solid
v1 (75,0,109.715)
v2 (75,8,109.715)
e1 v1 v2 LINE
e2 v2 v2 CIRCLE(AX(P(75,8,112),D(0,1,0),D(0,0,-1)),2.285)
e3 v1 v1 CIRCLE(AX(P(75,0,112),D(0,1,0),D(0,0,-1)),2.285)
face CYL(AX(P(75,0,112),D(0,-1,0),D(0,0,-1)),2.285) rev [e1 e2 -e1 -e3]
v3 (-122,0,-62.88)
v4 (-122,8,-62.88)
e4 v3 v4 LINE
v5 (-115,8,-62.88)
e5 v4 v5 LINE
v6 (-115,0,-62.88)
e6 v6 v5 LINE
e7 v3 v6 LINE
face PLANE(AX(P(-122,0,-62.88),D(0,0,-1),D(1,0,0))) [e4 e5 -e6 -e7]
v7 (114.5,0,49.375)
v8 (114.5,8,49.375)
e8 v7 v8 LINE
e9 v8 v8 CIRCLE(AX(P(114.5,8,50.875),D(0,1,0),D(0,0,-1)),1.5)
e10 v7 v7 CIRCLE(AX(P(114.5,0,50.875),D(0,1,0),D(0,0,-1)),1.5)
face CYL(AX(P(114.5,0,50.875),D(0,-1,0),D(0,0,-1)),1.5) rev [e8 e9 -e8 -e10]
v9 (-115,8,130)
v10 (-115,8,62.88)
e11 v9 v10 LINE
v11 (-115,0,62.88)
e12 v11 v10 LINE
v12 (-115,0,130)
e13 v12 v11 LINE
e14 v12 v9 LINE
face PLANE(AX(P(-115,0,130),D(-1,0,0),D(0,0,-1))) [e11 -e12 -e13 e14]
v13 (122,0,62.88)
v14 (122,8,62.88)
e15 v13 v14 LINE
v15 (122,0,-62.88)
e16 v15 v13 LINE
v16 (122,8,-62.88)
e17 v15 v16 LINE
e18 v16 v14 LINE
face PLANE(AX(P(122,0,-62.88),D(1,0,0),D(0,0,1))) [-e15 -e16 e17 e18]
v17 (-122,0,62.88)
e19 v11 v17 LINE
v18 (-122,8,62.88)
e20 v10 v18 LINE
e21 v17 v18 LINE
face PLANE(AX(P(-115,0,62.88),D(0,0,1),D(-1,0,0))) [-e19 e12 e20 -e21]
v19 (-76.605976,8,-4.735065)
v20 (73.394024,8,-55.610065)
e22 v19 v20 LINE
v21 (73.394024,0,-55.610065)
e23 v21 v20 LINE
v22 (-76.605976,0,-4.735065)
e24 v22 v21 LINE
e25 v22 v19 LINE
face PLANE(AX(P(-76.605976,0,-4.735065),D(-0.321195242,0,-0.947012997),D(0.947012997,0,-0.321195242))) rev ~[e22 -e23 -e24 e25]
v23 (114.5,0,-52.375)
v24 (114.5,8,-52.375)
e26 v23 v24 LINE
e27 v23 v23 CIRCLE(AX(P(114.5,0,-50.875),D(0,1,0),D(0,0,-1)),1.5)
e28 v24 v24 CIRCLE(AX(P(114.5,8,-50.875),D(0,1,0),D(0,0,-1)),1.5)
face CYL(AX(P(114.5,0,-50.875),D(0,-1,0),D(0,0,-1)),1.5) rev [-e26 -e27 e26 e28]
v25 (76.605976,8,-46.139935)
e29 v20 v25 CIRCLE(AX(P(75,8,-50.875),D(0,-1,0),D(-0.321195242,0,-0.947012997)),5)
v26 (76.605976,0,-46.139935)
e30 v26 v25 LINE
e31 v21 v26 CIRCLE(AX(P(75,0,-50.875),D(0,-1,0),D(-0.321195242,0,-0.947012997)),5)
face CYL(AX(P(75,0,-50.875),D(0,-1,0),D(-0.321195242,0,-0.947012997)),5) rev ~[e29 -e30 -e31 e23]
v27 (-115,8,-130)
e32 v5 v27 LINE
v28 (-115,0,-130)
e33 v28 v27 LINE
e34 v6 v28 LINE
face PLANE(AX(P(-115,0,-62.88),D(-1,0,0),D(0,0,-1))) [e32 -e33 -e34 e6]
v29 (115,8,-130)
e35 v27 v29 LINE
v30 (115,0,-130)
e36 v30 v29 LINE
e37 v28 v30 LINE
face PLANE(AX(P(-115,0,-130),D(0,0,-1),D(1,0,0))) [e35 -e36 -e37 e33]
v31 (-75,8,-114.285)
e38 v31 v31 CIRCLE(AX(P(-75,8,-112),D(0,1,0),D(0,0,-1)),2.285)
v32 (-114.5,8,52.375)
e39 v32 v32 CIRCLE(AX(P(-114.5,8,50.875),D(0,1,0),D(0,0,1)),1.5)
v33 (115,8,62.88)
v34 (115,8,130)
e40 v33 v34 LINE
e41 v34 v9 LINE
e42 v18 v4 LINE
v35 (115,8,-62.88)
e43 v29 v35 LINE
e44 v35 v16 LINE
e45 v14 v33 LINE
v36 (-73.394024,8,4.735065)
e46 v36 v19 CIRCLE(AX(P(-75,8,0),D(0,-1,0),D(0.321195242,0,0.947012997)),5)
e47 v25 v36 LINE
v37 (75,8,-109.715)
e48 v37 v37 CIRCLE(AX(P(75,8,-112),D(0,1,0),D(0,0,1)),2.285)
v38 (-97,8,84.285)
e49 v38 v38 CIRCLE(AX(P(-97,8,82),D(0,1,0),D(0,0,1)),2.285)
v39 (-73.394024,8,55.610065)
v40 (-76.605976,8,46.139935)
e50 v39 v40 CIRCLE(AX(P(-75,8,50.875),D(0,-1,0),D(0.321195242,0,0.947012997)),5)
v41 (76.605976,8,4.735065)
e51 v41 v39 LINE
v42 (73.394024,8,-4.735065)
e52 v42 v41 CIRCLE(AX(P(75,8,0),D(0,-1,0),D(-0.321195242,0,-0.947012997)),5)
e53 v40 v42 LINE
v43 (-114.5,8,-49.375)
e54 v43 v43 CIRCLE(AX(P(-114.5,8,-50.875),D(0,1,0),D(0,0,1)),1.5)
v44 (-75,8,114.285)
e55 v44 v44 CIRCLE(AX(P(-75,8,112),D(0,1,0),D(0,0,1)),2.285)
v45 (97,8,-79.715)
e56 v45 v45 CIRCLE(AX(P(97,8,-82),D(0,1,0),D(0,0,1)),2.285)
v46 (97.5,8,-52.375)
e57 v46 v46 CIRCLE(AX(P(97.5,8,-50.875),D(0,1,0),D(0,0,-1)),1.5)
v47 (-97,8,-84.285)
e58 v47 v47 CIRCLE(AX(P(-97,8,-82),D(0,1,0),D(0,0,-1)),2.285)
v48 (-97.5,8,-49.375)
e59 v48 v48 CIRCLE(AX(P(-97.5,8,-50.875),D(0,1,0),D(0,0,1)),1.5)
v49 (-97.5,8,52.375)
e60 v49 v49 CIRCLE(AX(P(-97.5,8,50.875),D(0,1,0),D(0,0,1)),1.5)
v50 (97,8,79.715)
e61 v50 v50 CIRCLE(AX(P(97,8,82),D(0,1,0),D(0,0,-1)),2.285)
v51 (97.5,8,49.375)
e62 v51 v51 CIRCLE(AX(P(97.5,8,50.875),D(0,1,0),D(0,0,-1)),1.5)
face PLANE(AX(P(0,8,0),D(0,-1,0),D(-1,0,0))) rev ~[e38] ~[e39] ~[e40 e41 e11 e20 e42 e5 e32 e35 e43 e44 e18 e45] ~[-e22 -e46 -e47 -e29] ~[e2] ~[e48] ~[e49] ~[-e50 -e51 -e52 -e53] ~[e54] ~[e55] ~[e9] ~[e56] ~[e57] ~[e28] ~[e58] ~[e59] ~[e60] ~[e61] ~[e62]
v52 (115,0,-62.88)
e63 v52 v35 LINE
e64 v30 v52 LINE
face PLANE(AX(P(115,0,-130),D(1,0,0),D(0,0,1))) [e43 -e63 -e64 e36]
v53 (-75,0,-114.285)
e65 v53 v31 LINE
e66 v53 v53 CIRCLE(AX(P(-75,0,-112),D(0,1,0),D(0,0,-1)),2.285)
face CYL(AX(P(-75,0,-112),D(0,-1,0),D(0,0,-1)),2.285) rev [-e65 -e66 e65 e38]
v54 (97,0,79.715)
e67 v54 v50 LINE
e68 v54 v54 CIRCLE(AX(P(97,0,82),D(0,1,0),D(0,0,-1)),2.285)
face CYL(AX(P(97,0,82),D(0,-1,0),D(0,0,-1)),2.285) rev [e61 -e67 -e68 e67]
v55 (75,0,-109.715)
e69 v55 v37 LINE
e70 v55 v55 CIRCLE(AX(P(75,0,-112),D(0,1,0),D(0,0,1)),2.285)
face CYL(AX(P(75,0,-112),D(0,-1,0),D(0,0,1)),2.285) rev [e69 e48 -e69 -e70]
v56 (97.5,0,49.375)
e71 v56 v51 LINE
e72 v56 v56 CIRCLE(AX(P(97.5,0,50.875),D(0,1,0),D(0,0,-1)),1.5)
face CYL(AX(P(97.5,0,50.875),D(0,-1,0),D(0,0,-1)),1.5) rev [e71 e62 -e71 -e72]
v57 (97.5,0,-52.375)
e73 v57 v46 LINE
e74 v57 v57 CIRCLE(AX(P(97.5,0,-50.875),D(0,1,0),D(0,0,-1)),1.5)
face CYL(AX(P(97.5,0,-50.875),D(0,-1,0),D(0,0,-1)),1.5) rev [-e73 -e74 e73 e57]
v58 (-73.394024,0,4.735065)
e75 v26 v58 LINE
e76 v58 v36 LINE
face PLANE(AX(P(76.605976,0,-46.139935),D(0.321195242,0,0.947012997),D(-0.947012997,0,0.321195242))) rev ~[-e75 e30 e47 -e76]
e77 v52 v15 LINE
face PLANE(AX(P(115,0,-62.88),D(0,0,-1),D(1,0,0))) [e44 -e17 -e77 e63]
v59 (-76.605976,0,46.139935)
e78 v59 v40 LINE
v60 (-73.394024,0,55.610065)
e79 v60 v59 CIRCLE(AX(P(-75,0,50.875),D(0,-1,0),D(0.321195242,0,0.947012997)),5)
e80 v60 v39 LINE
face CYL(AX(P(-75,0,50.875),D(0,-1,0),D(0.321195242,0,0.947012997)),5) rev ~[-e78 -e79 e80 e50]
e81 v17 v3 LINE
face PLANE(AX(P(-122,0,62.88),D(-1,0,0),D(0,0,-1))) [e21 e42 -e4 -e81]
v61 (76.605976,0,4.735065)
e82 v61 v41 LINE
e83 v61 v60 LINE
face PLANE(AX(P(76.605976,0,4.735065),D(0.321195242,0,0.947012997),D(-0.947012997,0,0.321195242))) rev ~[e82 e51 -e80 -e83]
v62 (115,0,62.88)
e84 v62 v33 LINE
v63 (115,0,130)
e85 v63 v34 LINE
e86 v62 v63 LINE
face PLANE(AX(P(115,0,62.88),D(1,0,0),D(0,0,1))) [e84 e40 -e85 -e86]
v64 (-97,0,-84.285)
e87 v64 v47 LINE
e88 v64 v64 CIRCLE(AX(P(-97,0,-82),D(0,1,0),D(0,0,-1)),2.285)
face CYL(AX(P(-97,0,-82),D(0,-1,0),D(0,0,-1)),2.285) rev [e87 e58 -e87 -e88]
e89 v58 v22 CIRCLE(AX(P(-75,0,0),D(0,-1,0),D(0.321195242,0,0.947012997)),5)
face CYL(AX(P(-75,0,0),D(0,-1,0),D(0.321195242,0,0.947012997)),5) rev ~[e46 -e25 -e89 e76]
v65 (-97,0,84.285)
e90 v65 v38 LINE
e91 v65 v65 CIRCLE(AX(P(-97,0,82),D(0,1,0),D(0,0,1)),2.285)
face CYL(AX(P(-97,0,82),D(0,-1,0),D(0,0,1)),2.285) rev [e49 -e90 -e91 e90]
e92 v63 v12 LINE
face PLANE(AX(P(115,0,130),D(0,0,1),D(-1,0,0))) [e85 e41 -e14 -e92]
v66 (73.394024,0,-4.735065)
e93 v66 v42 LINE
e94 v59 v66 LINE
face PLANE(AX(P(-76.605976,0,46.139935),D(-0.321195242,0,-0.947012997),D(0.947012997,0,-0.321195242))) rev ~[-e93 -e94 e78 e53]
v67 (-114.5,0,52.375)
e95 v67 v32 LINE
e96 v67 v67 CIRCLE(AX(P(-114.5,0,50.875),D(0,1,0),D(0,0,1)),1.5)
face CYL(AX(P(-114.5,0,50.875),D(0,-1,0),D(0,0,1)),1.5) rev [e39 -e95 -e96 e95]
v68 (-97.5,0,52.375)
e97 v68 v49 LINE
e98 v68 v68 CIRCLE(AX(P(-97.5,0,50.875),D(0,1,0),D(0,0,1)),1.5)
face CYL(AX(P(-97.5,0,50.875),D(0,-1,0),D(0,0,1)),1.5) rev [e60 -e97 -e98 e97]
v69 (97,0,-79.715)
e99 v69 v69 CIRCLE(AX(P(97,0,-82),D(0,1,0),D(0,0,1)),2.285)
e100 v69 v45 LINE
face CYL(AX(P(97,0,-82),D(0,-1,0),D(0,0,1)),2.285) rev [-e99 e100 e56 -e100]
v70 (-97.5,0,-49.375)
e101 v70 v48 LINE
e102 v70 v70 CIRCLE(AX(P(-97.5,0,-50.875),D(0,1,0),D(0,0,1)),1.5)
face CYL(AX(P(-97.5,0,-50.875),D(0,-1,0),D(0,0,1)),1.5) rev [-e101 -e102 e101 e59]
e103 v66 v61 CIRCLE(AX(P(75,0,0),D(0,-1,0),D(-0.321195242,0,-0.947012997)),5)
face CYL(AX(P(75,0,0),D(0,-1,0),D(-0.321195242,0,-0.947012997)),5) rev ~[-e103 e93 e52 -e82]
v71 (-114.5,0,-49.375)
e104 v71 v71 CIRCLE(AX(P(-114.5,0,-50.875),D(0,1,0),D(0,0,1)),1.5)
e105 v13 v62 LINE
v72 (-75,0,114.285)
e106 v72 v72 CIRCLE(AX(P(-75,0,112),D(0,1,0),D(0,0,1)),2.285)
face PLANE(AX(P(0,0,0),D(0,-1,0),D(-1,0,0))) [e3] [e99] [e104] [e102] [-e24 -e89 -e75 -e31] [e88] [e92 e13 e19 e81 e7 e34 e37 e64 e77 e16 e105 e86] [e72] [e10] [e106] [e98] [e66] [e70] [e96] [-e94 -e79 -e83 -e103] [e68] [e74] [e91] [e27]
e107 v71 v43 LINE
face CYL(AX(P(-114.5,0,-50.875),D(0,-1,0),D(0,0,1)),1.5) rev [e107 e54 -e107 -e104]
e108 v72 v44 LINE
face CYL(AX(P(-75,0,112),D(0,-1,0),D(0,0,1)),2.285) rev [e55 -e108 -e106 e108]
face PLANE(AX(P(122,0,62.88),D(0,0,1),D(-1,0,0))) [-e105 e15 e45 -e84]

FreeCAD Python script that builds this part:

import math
import FreeCAD as App
import Part
import Sketcher
from FreeCAD import Vector

doc = App.newDocument("Part")
body = doc.addObject("PartDesign::Body", "Body")

sketch1 = body.newObject("Sketcher::SketchObject", "Sketch")
sketch1.AttachmentSupport = (doc.getObject("XZ_Plane"), [""])
sketch1.MapMode = "FlatFace"
sketch1.addGeometry(Part.LineSegment(Vector(115, -130, 0), Vector(-115, -130, 0)), False)
sketch1.addGeometry(Part.LineSegment(Vector(-115, -130, 0), Vector(-115, -62.9, 0)), False)
sketch1.addGeometry(Part.LineSegment(Vector(-115, -62.9, 0), Vector(-122, -62.9, 0)), False)
sketch1.addGeometry(Part.LineSegment(Vector(-122, -62.9, 0), Vector(-122, 62.9, 0)), False)
sketch1.addGeometry(Part.LineSegment(Vector(-122, 62.9, 0), Vector(-115, 62.9, 0)), False)
sketch1.addGeometry(Part.LineSegment(Vector(-115, 62.9, 0), Vector(-115, 130, 0)), False)
sketch1.addGeometry(Part.LineSegment(Vector(-115, 130, 0), Vector(115, 130, 0)), False)
sketch1.addGeometry(Part.LineSegment(Vector(115, 130, 0), Vector(115, 62.9, 0)), False)
sketch1.addGeometry(Part.LineSegment(Vector(115, 62.9, 0), Vector(122, 62.9, 0)), False)
sketch1.addGeometry(Part.LineSegment(Vector(122, 62.9, 0), Vector(122, -62.9, 0)), False)
sketch1.addGeometry(Part.LineSegment(Vector(122, -62.9, 0), Vector(115, -62.9, 0)), False)
sketch1.addGeometry(Part.LineSegment(Vector(115, -62.9, 0), Vector(115, -130, 0)), False)
sketch1.addGeometry(Part.Circle(Vector(75, 112, 0), Vector(0, 0, 1), 2.3), False)
sketch1.addGeometry(Part.Circle(Vector(97, 82, 0), Vector(0, 0, 1), 2.3), False)
sketch1.addGeometry(Part.Circle(Vector(114.5, 50.9, 0), Vector(0, 0, 1), 1.5), False)
sketch1.addGeometry(Part.Circle(Vector(97.5, 50.9, 0), Vector(0, 0, 1), 1.5), False)
sketch1.addGeometry(Part.Circle(Vector(-75, 112, 0), Vector(0, 0, 1), 2.3), False)
sketch1.addGeometry(Part.Circle(Vector(-97, 82, 0), Vector(0, 0, 1), 2.3), False)
sketch1.addGeometry(Part.LineSegment(Vector(-76.6, 46.1, 0), Vector(73.4, -4.7, 0)), False)
sketch1.addGeometry(Part.ArcOfCircle(Part.Circle(Vector(75, 0, 0), Vector(0, 0, 1), 5), math.radians(-109), math.radians(71)), False)
sketch1.addGeometry(Part.LineSegment(Vector(76.6, 4.7, 0), Vector(-73.4, 55.6, 0)), False)
sketch1.addGeometry(Part.ArcOfCircle(Part.Circle(Vector(-75, 50.9, 0), Vector(0, 0, 1), 5), math.radians(71), math.radians(251)), False)
sketch1.addGeometry(Part.Circle(Vector(-97.5, 50.9, 0), Vector(0, 0, 1), 1.5), False)
sketch1.addGeometry(Part.Circle(Vector(-114.5, 50.9, 0), Vector(0, 0, 1), 1.5), False)
sketch1.addGeometry(Part.Circle(Vector(114.5, -50.9, 0), Vector(0, 0, 1), 1.5), False)
sketch1.addGeometry(Part.Circle(Vector(97.5, -50.9, 0), Vector(0, 0, 1), 1.5), False)
sketch1.addGeometry(Part.Circle(Vector(97, -82, 0), Vector(0, 0, 1), 2.3), False)
sketch1.addGeometry(Part.Circle(Vector(75, -112, 0), Vector(0, 0, 1), 2.3), False)
sketch1.addGeometry(Part.LineSegment(Vector(-76.6, -4.7, 0), Vector(73.4, -55.6, 0)), False)
sketch1.addGeometry(Part.ArcOfCircle(Part.Circle(Vector(75, -50.9, 0), Vector(0, 0, 1), 5), math.radians(-109), math.radians(71)), False)
sketch1.addGeometry(Part.LineSegment(Vector(76.6, -46.1, 0), Vector(-73.4, 4.7, 0)), False)
sketch1.addGeometry(Part.ArcOfCircle(Part.Circle(Vector(-75, 0, 0), Vector(0, 0, 1), 5), math.radians(71), math.radians(251)), False)
sketch1.addGeometry(Part.Circle(Vector(-97.5, -50.9, 0), Vector(0, 0, 1), 1.5), False)
sketch1.addGeometry(Part.Circle(Vector(-114.5, -50.9, 0), Vector(0, 0, 1), 1.5), False)
sketch1.addGeometry(Part.Circle(Vector(-97, -82, 0), Vector(0, 0, 1), 2.3), False)
sketch1.addGeometry(Part.Circle(Vector(-75, -112, 0), Vector(0, 0, 1), 2.3), False)
sketch1.addConstraint(Sketcher.Constraint("Coincident", 0, 2, 1, 1))
sketch1.addConstraint(Sketcher.Constraint("Coincident", 1, 2, 2, 1))
sketch1.addConstraint(Sketcher.Constraint("Coincident", 2, 2, 3, 1))
sketch1.addConstraint(Sketcher.Constraint("Coincident", 3, 2, 4, 1))
sketch1.addConstraint(Sketcher.Constraint("Coincident", 4, 2, 5, 1))
sketch1.addConstraint(Sketcher.Constraint("Coincident", 5, 2, 6, 1))
sketch1.addConstraint(Sketcher.Constraint("Coincident", 6, 2, 7, 1))
sketch1.addConstraint(Sketcher.Constraint("Coincident", 7, 2, 8, 1))
sketch1.addConstraint(Sketcher.Constraint("Coincident", 8, 2, 9, 1))
sketch1.addConstraint(Sketcher.Constraint("Coincident", 9, 2, 10, 1))
sketch1.addConstraint(Sketcher.Constraint("Coincident", 10, 2, 11, 1))
sketch1.addConstraint(Sketcher.Constraint("Coincident", 11, 2, 0, 1))
sketch1.addConstraint(Sketcher.Constraint("Tangent", 18, 2, 19, 1))
sketch1.addConstraint(Sketcher.Constraint("Tangent", 19, 2, 20, 1))
sketch1.addConstraint(Sketcher.Constraint("Tangent", 20, 2, 21, 1))
sketch1.addConstraint(Sketcher.Constraint("Tangent", 21, 2, 18, 1))
sketch1.addConstraint(Sketcher.Constraint("Tangent", 28, 2, 29, 1))
sketch1.addConstraint(Sketcher.Constraint("Tangent", 29, 2, 30, 1))
sketch1.addConstraint(Sketcher.Constraint("Tangent", 30, 2, 31, 1))
sketch1.addConstraint(Sketcher.Constraint("Tangent", 31, 2, 28, 1))
sketch1.addConstraint(Sketcher.Constraint("Horizontal", 0))
sketch1.addConstraint(Sketcher.Constraint("Vertical", 1))
sketch1.addConstraint(Sketcher.Constraint("Horizontal", 2))
sketch1.addConstraint(Sketcher.Constraint("Vertical", 3))
sketch1.addConstraint(Sketcher.Constraint("Horizontal", 4))
sketch1.addConstraint(Sketcher.Constraint("Vertical", 5))
sketch1.addConstraint(Sketcher.Constraint("Horizontal", 6))
sketch1.addConstraint(Sketcher.Constraint("Vertical", 7))
sketch1.addConstraint(Sketcher.Constraint("Horizontal", 8))
sketch1.addConstraint(Sketcher.Constraint("Vertical", 9))
sketch1.addConstraint(Sketcher.Constraint("Horizontal", 10))
sketch1.addConstraint(Sketcher.Constraint("Vertical", 11))
sketch1.addConstraint(Sketcher.Constraint("Equal", 12, 13))
sketch1.addConstraint(Sketcher.Constraint("Equal", 14, 15))
sketch1.addConstraint(Sketcher.Constraint("Equal", 13, 16))
sketch1.addConstraint(Sketcher.Constraint("Equal", 16, 17))
sketch1.addConstraint(Sketcher.Constraint("Equal", 19, 21))
sketch1.addConstraint(Sketcher.Constraint("Equal", 15, 22))
sketch1.addConstraint(Sketcher.Constraint("Equal", 22, 23))
sketch1.addConstraint(Sketcher.Constraint("Equal", 23, 24))
sketch1.addConstraint(Sketcher.Constraint("Equal", 24, 25))
sketch1.addConstraint(Sketcher.Constraint("Equal", 17, 26))
sketch1.addConstraint(Sketcher.Constraint("Equal", 26, 27))
sketch1.addConstraint(Sketcher.Constraint("Equal", 21, 29))
sketch1.addConstraint(Sketcher.Constraint("Equal", 29, 31))
sketch1.addConstraint(Sketcher.Constraint("Equal", 25, 32))
sketch1.addConstraint(Sketcher.Constraint("Equal", 32, 33))
sketch1.addConstraint(Sketcher.Constraint("Equal", 27, 34))
sketch1.addConstraint(Sketcher.Constraint("Equal", 34, 35))
sketch1.addConstraint(Sketcher.Constraint("Symmetric", 23, 3, 24, 3, -1, 1))
sketch1.addConstraint(Sketcher.Constraint("Symmetric", 22, 3, 25, 3, -1, 1))
sketch1.addConstraint(Sketcher.Constraint("Symmetric", 17, 3, 26, 3, -1, 1))
sketch1.addConstraint(Sketcher.Constraint("Symmetric", 16, 3, 27, 3, -1, 1))
sketch1.addConstraint(Sketcher.Constraint("Symmetric", 21, 3, 29, 3, -1, 1))
sketch1.addConstraint(Sketcher.Constraint("Symmetric", 19, 3, 31, 3, -1, 1))
sketch1.addConstraint(Sketcher.Constraint("Symmetric", 15, 3, 32, 3, -1, 1))
sketch1.addConstraint(Sketcher.Constraint("Symmetric", 14, 3, 33, 3, -1, 1))
sketch1.addConstraint(Sketcher.Constraint("Symmetric", 13, 3, 34, 3, -1, 1))
sketch1.addConstraint(Sketcher.Constraint("Symmetric", 12, 3, 35, 3, -1, 1))
sketch1.addConstraint(Sketcher.Constraint("Symmetric", 0, 2, 6, 2, -1, 1))
sketch1.addConstraint(Sketcher.Constraint("Symmetric", 2, 2, 8, 2, -1, 1))
sketch1.addConstraint(Sketcher.Constraint("Symmetric", 4, 2, 10, 2, -1, 1))
sketch1.addConstraint(Sketcher.Constraint("Symmetric", 12, 3, 16, 3, -2))
sketch1.addConstraint(Sketcher.Constraint("Symmetric", 13, 3, 17, 3, -2))
sketch1.addConstraint(Sketcher.Constraint("Symmetric", 15, 3, 22, 3, -2))
sketch1.addConstraint(Sketcher.Constraint("Symmetric", 14, 3, 23, 3, -2))
sketch1.addConstraint(Sketcher.Constraint("Symmetric", 4, 2, 7, 2, -2))
sketch1.addConstraint(Sketcher.Constraint("PointOnObject", 19, 3, -1))
sketch1.addConstraint(Sketcher.Constraint("Horizontal", 14, 3, 15, 3))
sketch1.addConstraint(Sketcher.Constraint("Horizontal", 15, 3, 21, 3))
sketch1.addConstraint(Sketcher.Constraint("Vertical", 12, 3, 19, 3))
sketch1.addConstraint(Sketcher.Constraint("Vertical", 16, 3, 21, 3))
sketch1.addConstraint(Sketcher.Constraint("Diameter", 14, 3.0))
sketch1.addConstraint(Sketcher.Constraint("Radius", 19, 5.0))
sketch1.addConstraint(Sketcher.Constraint("Diameter", 12, 4.57))
sketch1.addConstraint(Sketcher.Constraint("DistanceX", 0, 2, 0, 1, 230.0))
sketch1.addConstraint(Sketcher.Constraint("DistanceX", 2, 2, 2, 1, 7.0))
sketch1.addConstraint(Sketcher.Constraint("DistanceX", -1, 1, 12, 3, 75.0))
sketch1.addConstraint(Sketcher.Constraint("DistanceY", -1, 1, 12, 3, 112.0))
sketch1.addConstraint(Sketcher.Constraint("DistanceX", -1, 1, 13, 3, 97.0))
sketch1.addConstraint(Sketcher.Constraint("DistanceY", -1, 1, 13, 3, 82.0))
sketch1.addConstraint(Sketcher.Constraint("DistanceY", 0, 2, -1, 1, 130.0))
sketch1.addConstraint(Sketcher.Constraint("DistanceX", 15, 3, 14, 3, 17.0))
sketch1.addConstraint(Sketcher.Constraint("DistanceY", 1, 1, 1, 2, 67.12))
sketch1.addConstraint(Sketcher.Constraint("DistanceX", -1, 1, 14, 3, 114.5))
sketch1.addConstraint(Sketcher.Constraint("DistanceY", 24, 3, 14, 3, 101.75))
pad1 = body.newObject("PartDesign::Pad", "Pad")
pad1.Profile = sketch1
pad1.Length = 8
pad1.Reversed = True

doc.recompute()
